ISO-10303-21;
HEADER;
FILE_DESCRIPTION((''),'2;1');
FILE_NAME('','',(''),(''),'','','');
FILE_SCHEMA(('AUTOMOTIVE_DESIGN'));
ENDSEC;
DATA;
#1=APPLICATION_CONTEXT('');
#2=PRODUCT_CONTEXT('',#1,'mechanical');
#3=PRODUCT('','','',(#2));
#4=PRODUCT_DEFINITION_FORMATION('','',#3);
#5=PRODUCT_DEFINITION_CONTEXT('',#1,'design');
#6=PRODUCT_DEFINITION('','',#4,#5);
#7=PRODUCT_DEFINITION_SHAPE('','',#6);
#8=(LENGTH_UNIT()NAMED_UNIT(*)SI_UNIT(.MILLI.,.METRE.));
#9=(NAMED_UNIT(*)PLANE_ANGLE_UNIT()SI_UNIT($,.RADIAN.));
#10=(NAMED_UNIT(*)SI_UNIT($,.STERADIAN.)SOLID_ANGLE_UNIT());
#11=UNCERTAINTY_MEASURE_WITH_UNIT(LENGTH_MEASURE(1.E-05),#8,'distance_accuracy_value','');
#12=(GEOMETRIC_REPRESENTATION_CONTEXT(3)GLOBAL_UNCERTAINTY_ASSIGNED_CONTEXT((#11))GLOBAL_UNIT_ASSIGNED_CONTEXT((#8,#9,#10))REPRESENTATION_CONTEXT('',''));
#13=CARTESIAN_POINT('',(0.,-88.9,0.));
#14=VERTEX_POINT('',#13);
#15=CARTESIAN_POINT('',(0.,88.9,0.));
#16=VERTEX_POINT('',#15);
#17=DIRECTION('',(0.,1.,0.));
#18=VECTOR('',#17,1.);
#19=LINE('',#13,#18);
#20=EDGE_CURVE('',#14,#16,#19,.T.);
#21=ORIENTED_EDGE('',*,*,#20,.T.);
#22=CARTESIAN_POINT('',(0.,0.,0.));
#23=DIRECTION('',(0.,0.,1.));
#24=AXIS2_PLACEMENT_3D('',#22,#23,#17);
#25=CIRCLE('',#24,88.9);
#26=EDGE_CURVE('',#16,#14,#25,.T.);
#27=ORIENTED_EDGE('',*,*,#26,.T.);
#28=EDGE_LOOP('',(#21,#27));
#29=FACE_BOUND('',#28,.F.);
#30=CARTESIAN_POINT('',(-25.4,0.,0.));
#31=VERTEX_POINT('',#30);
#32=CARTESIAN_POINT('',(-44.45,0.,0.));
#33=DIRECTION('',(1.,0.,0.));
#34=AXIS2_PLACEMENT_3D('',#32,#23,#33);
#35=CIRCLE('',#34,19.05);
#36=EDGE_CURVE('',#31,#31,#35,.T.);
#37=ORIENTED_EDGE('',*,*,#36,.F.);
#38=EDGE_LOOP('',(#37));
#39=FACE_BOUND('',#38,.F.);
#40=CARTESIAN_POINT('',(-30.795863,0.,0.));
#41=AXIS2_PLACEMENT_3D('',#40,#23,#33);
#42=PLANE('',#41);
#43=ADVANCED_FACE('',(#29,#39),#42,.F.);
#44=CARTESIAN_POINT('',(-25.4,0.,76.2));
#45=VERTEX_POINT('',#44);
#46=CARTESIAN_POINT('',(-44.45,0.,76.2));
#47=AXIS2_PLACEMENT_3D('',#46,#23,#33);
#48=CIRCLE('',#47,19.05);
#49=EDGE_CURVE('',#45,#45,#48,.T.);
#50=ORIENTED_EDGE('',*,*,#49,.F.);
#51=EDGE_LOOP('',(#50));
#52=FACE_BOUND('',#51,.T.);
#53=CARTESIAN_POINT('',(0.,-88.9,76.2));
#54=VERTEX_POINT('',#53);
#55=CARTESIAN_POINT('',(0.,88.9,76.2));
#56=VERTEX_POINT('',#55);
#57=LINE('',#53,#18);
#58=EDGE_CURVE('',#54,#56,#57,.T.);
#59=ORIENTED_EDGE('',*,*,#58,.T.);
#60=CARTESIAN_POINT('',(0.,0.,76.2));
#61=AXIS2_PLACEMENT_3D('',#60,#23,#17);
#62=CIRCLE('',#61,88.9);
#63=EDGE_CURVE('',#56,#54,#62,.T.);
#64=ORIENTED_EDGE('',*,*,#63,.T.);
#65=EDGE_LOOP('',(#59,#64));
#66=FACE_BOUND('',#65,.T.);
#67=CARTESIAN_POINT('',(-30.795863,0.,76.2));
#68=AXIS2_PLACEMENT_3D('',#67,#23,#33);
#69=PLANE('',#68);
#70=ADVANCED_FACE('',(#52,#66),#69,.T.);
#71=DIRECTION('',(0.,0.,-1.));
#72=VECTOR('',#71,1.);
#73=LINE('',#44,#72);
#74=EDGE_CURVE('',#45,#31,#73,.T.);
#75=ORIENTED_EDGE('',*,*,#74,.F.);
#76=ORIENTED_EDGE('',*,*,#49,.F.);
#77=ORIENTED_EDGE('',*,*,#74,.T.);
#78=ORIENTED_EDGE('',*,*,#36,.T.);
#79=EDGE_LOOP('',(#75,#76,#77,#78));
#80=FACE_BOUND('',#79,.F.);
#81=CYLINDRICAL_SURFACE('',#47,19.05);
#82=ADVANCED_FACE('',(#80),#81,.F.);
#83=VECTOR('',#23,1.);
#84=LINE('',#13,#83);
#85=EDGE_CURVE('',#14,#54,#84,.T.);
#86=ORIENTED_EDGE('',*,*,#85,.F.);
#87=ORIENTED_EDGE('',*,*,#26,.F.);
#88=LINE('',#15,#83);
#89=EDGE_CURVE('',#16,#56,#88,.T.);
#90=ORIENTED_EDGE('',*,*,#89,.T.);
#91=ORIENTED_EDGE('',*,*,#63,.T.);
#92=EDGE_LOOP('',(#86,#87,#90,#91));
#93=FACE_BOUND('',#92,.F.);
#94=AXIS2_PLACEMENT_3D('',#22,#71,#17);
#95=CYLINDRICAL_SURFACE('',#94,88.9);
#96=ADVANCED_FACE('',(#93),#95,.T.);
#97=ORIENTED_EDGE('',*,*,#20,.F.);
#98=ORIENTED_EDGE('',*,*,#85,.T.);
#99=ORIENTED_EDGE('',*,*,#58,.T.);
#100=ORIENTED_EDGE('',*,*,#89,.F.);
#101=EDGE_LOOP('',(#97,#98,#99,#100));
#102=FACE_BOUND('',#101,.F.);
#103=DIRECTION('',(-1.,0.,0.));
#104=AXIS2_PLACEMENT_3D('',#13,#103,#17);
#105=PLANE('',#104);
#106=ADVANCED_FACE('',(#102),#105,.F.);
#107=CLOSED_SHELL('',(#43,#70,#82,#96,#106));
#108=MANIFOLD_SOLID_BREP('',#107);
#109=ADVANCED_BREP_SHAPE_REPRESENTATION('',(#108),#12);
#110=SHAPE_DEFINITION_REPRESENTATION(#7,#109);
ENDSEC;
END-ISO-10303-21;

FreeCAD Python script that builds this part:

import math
import FreeCAD as App
import Part
import Sketcher

V = App.Vector
Q = App.Units.Quantity

doc = App.newDocument("Part")
body = doc.addObject("PartDesign::Body", "Body")

# Sketch on XY plane
sketch1 = body.newObject("Sketcher::SketchObject", "Sketch")
sketch1.AttachmentSupport = (doc.getObject("XY_Plane"), [""])
sketch1.MapMode = "FlatFace"
sketch1.addGeometry(Part.LineSegment(V(0, -89, 0), V(0, 89, 0)), False)
sketch1.addGeometry(Part.ArcOfCircle(Part.Circle(V(0, 0, 0), V(0, 0, 1), 89), math.radians(90), math.radians(270)), False)
sketch1.addConstraint(Sketcher.Constraint("Coincident", 0, 1, 1, 2))
sketch1.addConstraint(Sketcher.Constraint("Coincident", 1, 1, 0, 2))
sketch1.addConstraint(Sketcher.Constraint("Vertical", 0))
sketch1.addConstraint(Sketcher.Constraint("Coincident", 1, 3, -1, 1))
sketch1.addConstraint(Sketcher.Constraint("PointOnObject", 0, 1, -2))
sketch1.addConstraint(Sketcher.Constraint("Radius", 1, Q("3.5 in")))
pad1 = body.newObject("PartDesign::Pad", "Pad")
pad1.Profile = sketch1
pad1.Length = Q("3 in")

# Sketch on XY plane
sketch2 = body.newObject("Sketcher::SketchObject", "Sketch001")
sketch2.AttachmentSupport = (doc.getObject("XY_Plane"), [""])
sketch2.MapMode = "FlatFace"
sketch2.AttachmentOffset = App.Placement(V(0, 0, 3 * 25.4), App.Rotation())
sketch2.addGeometry(Part.Circle(V(-44, 0, 0), V(0, 0, 1), 19), False)
sketch2.addConstraint(Sketcher.Constraint("PointOnObject", 0, 3, -1))
sketch2.addConstraint(Sketcher.Constraint("Diameter", 0, Q("1.5 in")))
sketch2.addConstraint(Sketcher.Constraint("DistanceX", 0, 3, -1, 1, Q("1.75 in")))
pocket1 = body.newObject("PartDesign::Pocket", "Pocket")
pocket1.Profile = sketch2
pocket1.Length = Q("3 in")

doc.recompute()
